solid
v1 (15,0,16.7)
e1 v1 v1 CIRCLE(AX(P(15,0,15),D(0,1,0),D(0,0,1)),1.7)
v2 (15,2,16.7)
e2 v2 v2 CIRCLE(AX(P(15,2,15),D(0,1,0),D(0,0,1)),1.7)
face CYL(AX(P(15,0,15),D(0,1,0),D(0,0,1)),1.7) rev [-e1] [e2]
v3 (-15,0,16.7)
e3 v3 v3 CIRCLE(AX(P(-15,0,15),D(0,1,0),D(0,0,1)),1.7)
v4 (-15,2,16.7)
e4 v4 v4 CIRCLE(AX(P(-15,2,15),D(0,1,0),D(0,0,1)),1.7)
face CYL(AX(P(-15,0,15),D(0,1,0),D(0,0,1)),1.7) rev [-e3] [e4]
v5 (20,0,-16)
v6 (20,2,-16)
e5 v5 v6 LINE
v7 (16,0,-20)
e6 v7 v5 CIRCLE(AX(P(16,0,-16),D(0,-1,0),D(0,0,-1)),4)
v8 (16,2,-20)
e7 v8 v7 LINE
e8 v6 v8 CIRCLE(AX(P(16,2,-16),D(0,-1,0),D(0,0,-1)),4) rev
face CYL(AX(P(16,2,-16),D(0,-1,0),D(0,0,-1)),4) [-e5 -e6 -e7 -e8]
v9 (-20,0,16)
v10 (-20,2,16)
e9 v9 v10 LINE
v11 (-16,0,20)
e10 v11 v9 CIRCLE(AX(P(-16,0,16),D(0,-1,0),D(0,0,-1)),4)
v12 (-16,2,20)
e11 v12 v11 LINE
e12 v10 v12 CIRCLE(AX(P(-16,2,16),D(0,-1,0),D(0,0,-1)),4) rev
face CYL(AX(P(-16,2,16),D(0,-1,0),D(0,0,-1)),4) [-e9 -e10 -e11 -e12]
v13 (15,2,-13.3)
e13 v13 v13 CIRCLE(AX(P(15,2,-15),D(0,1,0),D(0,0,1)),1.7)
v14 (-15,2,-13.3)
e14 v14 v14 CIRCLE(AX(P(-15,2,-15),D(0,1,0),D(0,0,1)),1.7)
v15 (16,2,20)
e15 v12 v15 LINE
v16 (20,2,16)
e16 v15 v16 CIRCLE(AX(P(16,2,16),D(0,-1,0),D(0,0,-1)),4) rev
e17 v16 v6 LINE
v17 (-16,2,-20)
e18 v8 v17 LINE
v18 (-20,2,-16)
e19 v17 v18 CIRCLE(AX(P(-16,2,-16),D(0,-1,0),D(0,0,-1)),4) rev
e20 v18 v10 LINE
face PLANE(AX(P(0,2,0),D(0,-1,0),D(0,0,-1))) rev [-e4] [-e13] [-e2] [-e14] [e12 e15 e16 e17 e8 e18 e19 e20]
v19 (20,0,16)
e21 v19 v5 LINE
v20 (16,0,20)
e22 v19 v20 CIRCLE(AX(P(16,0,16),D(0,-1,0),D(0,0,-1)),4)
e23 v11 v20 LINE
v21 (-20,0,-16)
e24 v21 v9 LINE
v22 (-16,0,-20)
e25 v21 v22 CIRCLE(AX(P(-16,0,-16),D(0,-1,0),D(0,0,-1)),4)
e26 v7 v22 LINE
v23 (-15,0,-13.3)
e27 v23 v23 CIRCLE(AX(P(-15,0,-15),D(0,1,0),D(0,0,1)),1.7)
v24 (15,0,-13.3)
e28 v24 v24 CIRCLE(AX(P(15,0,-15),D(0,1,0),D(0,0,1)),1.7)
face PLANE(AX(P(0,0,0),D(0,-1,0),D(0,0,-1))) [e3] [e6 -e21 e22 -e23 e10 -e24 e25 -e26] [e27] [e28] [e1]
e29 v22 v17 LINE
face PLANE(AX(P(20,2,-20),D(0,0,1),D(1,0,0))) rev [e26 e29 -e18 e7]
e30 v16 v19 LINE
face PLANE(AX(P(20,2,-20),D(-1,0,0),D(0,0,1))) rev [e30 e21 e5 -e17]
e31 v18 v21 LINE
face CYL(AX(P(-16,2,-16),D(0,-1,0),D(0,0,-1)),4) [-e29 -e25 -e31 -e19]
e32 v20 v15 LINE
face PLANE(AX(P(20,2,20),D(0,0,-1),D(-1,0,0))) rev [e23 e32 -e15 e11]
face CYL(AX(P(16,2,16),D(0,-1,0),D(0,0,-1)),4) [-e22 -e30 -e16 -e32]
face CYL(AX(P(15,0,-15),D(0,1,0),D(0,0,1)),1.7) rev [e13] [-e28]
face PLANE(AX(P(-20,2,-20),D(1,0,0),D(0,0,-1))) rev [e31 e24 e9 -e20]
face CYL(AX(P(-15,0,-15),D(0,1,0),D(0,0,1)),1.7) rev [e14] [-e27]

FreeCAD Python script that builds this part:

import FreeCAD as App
import Part
import Sketcher

V = App.Vector
Q = App.Units.Quantity


def edges_at(feature, points):
    """Names of the edges that pass closest to the given points."""
    edges = feature.Shape.Edges
    near = lambda p: min(range(len(edges)), key=lambda i: edges[i].distToShape(Part.Vertex(*p))[0])
    return sorted({f"Edge{near(p) + 1}" for p in points})

doc = App.newDocument("Part")
body = doc.addObject("PartDesign::Body", "Body")

# Sketch on XZ plane
sketch1 = body.newObject("Sketcher::SketchObject", "Sketch")
sketch1.AttachmentSupport = (doc.getObject("XZ_Plane"), [""])
sketch1.MapMode = "FlatFace"
sketch1.addGeometry(Part.LineSegment(V(-20, -20, 0), V(-20, 20, 0)), False)
sketch1.addGeometry(Part.LineSegment(V(-20, 20, 0), V(20, 20, 0)), False)
sketch1.addGeometry(Part.LineSegment(V(20, 20, 0), V(20, -20, 0)), False)
sketch1.addGeometry(Part.LineSegment(V(20, -20, 0), V(-20, -20, 0)), False)
sketch1.addConstraint(Sketcher.Constraint("Coincident", 0, 2, 1, 1))
sketch1.addConstraint(Sketcher.Constraint("Coincident", 1, 2, 2, 1))
sketch1.addConstraint(Sketcher.Constraint("Coincident", 2, 2, 3, 1))
sketch1.addConstraint(Sketcher.Constraint("Coincident", 3, 2, 0, 1))
sketch1.addConstraint(Sketcher.Constraint("Vertical", 0))
sketch1.addConstraint(Sketcher.Constraint("Horizontal", 1))
sketch1.addConstraint(Sketcher.Constraint("Vertical", 2))
sketch1.addConstraint(Sketcher.Constraint("Horizontal", 3))
sketch1.addConstraint(Sketcher.Constraint("Symmetric", 0, 2, 2, 2, -1, 1))
sketch1.addConstraint(Sketcher.Constraint("Equal", 3, 0))
sketch1.addConstraint(Sketcher.Constraint("DistanceX", 1, 1, 1, 2, Q("40 mm")))
pad1 = body.newObject("PartDesign::Pad", "Pad")
pad1.Profile = sketch1
pad1.Length = 2
pad1.Reversed = True

# Sketch on XZ plane
sketch2 = body.newObject("Sketcher::SketchObject", "Sketch001")
sketch2.AttachmentSupport = (doc.getObject("XZ_Plane"), [""])
sketch2.MapMode = "FlatFace"
sketch2.AttachmentOffset = App.Placement(V(0, 0, -2), App.Rotation())
sketch2.addGeometry(Part.Circle(V(15, -15, 0), V(0, 0, 1), 1.7), False)
sketch2.addGeometry(Part.Circle(V(15, 15, 0), V(0, 0, 1), 1.7), False)
sketch2.addGeometry(Part.Circle(V(-15, 15, 0), V(0, 0, 1), 1.7), False)
sketch2.addGeometry(Part.Circle(V(-15, -15, 0), V(0, 0, 1), 1.7), False)
sketch2.addConstraint(Sketcher.Constraint("Equal", 0, 1))
sketch2.addConstraint(Sketcher.Constraint("Equal", 1, 2))
sketch2.addConstraint(Sketcher.Constraint("Equal", 2, 3))
sketch2.addConstraint(Sketcher.Constraint("Symmetric", 0, 3, 2, 3, -1, 1))
sketch2.addConstraint(Sketcher.Constraint("Symmetric", 1, 3, 3, 3, -1, 1))
sketch2.addConstraint(Sketcher.Constraint("Symmetric", 1, 3, 2, 3, -2))
sketch2.addConstraint(Sketcher.Constraint("Diameter", 0, Q("3.4 mm")))
sketch2.addConstraint(Sketcher.Constraint("DistanceX", -1, 1, 0, 3, Q("15 mm")))
sketch2.addConstraint(Sketcher.Constraint("DistanceY", 0, 3, -1, 1, Q("15 mm")))
pocket1 = body.newObject("PartDesign::Pocket", "Pocket")
pocket1.Profile = sketch2
pocket1.Type = "ThroughAll"
pocket1.Reversed = True
doc.recompute()

fillet = body.newObject("PartDesign::Fillet", "Fillet")
fillet.Base = (pocket1, edges_at(pocket1, [
    (-20, 1, -20),
    (20, 1, -20),
    (20, 1, 20),
    (-20, 1, 20),
]))
fillet.Radius = 4

doc.recompute()
